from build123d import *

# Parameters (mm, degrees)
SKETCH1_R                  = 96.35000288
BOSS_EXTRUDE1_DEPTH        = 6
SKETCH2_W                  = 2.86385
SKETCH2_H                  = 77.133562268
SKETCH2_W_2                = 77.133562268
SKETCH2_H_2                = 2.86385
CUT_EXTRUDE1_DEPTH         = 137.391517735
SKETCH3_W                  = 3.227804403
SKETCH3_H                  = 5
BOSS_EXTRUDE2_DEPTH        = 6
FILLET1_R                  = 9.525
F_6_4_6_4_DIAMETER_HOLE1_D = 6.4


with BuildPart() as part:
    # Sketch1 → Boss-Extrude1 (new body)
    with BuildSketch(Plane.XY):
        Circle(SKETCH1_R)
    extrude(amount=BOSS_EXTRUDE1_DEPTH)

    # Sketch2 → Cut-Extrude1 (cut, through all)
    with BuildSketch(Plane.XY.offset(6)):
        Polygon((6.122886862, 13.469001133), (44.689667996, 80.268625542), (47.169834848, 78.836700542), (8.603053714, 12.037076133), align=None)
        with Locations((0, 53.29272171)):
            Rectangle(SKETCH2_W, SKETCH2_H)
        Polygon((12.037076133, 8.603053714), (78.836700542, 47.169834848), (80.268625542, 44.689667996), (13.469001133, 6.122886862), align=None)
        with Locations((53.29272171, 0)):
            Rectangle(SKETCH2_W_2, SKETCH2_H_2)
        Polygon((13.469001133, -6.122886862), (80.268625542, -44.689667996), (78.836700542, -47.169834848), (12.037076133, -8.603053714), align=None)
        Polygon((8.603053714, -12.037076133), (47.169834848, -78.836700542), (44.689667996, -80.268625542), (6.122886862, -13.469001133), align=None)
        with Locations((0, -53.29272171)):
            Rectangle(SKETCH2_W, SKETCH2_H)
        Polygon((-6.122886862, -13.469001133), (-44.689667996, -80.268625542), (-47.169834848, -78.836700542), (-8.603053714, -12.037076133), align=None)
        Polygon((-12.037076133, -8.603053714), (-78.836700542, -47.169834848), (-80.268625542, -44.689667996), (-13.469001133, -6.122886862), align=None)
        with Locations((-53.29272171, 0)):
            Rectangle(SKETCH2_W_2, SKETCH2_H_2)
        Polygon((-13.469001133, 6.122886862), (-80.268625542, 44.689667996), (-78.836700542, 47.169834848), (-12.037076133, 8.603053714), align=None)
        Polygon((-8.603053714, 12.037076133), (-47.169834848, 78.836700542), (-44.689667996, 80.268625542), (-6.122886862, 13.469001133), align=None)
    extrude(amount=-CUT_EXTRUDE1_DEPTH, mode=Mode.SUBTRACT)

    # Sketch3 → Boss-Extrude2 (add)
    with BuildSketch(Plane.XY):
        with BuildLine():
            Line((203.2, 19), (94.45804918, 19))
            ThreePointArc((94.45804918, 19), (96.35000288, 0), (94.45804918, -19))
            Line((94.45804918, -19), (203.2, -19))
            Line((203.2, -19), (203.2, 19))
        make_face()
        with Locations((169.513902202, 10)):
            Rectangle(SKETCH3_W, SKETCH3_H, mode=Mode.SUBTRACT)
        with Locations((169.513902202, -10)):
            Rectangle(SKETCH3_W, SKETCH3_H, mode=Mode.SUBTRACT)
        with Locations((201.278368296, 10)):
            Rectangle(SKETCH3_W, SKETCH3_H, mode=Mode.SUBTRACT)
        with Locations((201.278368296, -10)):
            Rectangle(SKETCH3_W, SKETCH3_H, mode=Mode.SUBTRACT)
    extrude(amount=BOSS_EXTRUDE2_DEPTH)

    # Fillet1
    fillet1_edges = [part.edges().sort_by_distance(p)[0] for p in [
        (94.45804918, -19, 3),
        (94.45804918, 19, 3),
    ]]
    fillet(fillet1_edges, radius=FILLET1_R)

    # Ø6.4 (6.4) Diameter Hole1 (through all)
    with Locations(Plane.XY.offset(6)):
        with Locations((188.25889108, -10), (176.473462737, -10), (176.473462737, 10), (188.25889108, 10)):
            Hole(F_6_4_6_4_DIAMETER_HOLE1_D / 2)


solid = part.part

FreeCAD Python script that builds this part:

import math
import FreeCAD as App
import Part
import Sketcher
from FreeCAD import Vector
Q = App.Units.Quantity


def edges_at(feature, points):
    """Names of the edges that pass closest to the given points."""
    edges = feature.Shape.Edges
    near = lambda p: min(range(len(edges)), key=lambda i: edges[i].distToShape(Part.Vertex(*p))[0])
    return sorted({f"Edge{near(p) + 1}" for p in points})

doc = App.newDocument("Part")
body = doc.addObject("PartDesign::Body", "Body")

# Sketch on XY plane
sketch1 = doc.addObject("Sketcher::SketchObject", "Sketch")
body.addObject(sketch1)
sketch1.AttachmentSupport = (doc.XY_Plane, [""])
sketch1.MapMode = "FlatFace"
sketch1.addGeometry(Part.Circle(Vector(0, 0, 0), Vector(0, 0, 1), 96.350003), False)
sketch1.addConstraint([
    Sketcher.Constraint("Coincident", 0, 3, -1, 1),
    Sketcher.Constraint("Diameter", 0, 192.700006),
])
pad1 = doc.addObject("PartDesign::Pad", "Pad")
body.addObject(pad1)
pad1.Profile = sketch1
pad1.Length = 6

# Sketch on XY plane
sketch2 = doc.addObject("Sketcher::SketchObject", "Sketch001")
body.addObject(sketch2)
sketch2.AttachmentSupport = (doc.XY_Plane, [""])
sketch2.MapMode = "FlatFace"
sketch2.AttachmentOffset = App.Placement(Vector(0, 0, 6), App.Rotation())
sketch2.addGeometry([
    Part.LineSegment(Vector(44.689668, 80.268626, 0), Vector(6.122887, 13.469001, 0)),  # 0
    Part.LineSegment(Vector(6.122887, 13.469001, 0), Vector(8.603054, 12.037076, 0)),  # 1
    Part.LineSegment(Vector(8.603054, 12.037076, 0), Vector(47.169835, 78.836701, 0)),  # 2
    Part.LineSegment(Vector(47.169835, 78.836701, 0), Vector(44.689668, 80.268626, 0)),  # 3
    Part.LineSegment(Vector(-1.431925, 91.859503, 0), Vector(-1.431925, 14.725941, 0)),  # 4
    Part.LineSegment(Vector(-1.431925, 14.725941, 0), Vector(1.431925, 14.725941, 0)),  # 5
    Part.LineSegment(Vector(1.431925, 14.725941, 0), Vector(1.431925, 91.859503, 0)),  # 6
    Part.LineSegment(Vector(1.431925, 91.859503, 0), Vector(-1.431925, 91.859503, 0)),  # 7
    Part.LineSegment(Vector(78.836701, 47.169835, 0), Vector(12.037076, 8.603054, 0)),  # 8
    Part.LineSegment(Vector(12.037076, 8.603054, 0), Vector(13.469001, 6.122887, 0)),  # 9
    Part.LineSegment(Vector(13.469001, 6.122887, 0), Vector(80.268626, 44.689668, 0)),  # 10
    Part.LineSegment(Vector(80.268626, 44.689668, 0), Vector(78.836701, 47.169835, 0)),  # 11
    Part.LineSegment(Vector(14.725941, 1.431925, 0), Vector(14.725941, -1.431925, 0)),  # 12
    Part.LineSegment(Vector(14.725941, -1.431925, 0), Vector(91.859503, -1.431925, 0)),  # 13
    Part.LineSegment(Vector(91.859503, -1.431925, 0), Vector(91.859503, 1.431925, 0)),  # 14
    Part.LineSegment(Vector(91.859503, 1.431925, 0), Vector(14.725941, 1.431925, 0)),  # 15
    Part.LineSegment(Vector(80.268626, -44.689668, 0), Vector(13.469001, -6.122887, 0)),  # 16
    Part.LineSegment(Vector(13.469001, -6.122887, 0), Vector(12.037076, -8.603054, 0)),  # 17
    Part.LineSegment(Vector(12.037076, -8.603054, 0), Vector(78.836701, -47.169835, 0)),  # 18
    Part.LineSegment(Vector(78.836701, -47.169835, 0), Vector(80.268626, -44.689668, 0)),  # 19
    Part.LineSegment(Vector(47.169835, -78.836701, 0), Vector(8.603054, -12.037076, 0)),  # 20
    Part.LineSegment(Vector(8.603054, -12.037076, 0), Vector(6.122887, -13.469001, 0)),  # 21
    Part.LineSegment(Vector(6.122887, -13.469001, 0), Vector(44.689668, -80.268626, 0)),  # 22
    Part.LineSegment(Vector(44.689668, -80.268626, 0), Vector(47.169835, -78.836701, 0)),  # 23
    Part.LineSegment(Vector(-1.431925, -14.725941, 0), Vector(-1.431925, -91.859503, 0)),  # 24
    Part.LineSegment(Vector(-1.431925, -91.859503, 0), Vector(1.431925, -91.859503, 0)),  # 25
    Part.LineSegment(Vector(1.431925, -91.859503, 0), Vector(1.431925, -14.725941, 0)),  # 26
    Part.LineSegment(Vector(1.431925, -14.725941, 0), Vector(-1.431925, -14.725941, 0)),  # 27
    Part.LineSegment(Vector(-44.689668, -80.268626, 0), Vector(-6.122887, -13.469001, 0)),  # 28
    Part.LineSegment(Vector(-6.122887, -13.469001, 0), Vector(-8.603054, -12.037076, 0)),  # 29
    Part.LineSegment(Vector(-8.603054, -12.037076, 0), Vector(-47.169835, -78.836701, 0)),  # 30
    Part.LineSegment(Vector(-47.169835, -78.836701, 0), Vector(-44.689668, -80.268626, 0)),  # 31
    Part.LineSegment(Vector(-78.836701, -47.169835, 0), Vector(-12.037076, -8.603054, 0)),  # 32
    Part.LineSegment(Vector(-12.037076, -8.603054, 0), Vector(-13.469001, -6.122887, 0)),  # 33
    Part.LineSegment(Vector(-13.469001, -6.122887, 0), Vector(-80.268626, -44.689668, 0)),  # 34
    Part.LineSegment(Vector(-80.268626, -44.689668, 0), Vector(-78.836701, -47.169835, 0)),  # 35
    Part.LineSegment(Vector(-91.859503, 1.431925, 0), Vector(-91.859503, -1.431925, 0)),  # 36
    Part.LineSegment(Vector(-91.859503, -1.431925, 0), Vector(-14.725941, -1.431925, 0)),  # 37
    Part.LineSegment(Vector(-14.725941, -1.431925, 0), Vector(-14.725941, 1.431925, 0)),  # 38
    Part.LineSegment(Vector(-14.725941, 1.431925, 0), Vector(-91.859503, 1.431925, 0)),  # 39
    Part.LineSegment(Vector(-80.268626, 44.689668, 0), Vector(-13.469001, 6.122887, 0)),  # 40
    Part.LineSegment(Vector(-13.469001, 6.122887, 0), Vector(-12.037076, 8.603054, 0)),  # 41
    Part.LineSegment(Vector(-12.037076, 8.603054, 0), Vector(-78.836701, 47.169835, 0)),  # 42
    Part.LineSegment(Vector(-78.836701, 47.169835, 0), Vector(-80.268626, 44.689668, 0)),  # 43
    Part.LineSegment(Vector(-47.169835, 78.836701, 0), Vector(-8.603054, 12.037076, 0)),  # 44
    Part.LineSegment(Vector(-8.603054, 12.037076, 0), Vector(-6.122887, 13.469001, 0)),  # 45
    Part.LineSegment(Vector(-6.122887, 13.469001, 0), Vector(-44.689668, 80.268626, 0)),  # 46
    Part.LineSegment(Vector(-44.689668, 80.268626, 0), Vector(-47.169835, 78.836701, 0)),  # 47
], False)
sketch2.addConstraint([
    Sketcher.Constraint("Coincident", 0, 2, 1, 1),
    Sketcher.Constraint("Coincident", 1, 2, 2, 1),
    Sketcher.Constraint("Coincident", 2, 2, 3, 1),
    Sketcher.Constraint("Coincident", 3, 2, 0, 1),
    Sketcher.Constraint("Coincident", 4, 2, 5, 1),
    Sketcher.Constraint("Coincident", 5, 2, 6, 1),
    Sketcher.Constraint("Coincident", 6, 2, 7, 1),
    Sketcher.Constraint("Coincident", 7, 2, 4, 1),
    Sketcher.Constraint("Coincident", 8, 2, 9, 1),
    Sketcher.Constraint("Coincident", 9, 2, 10, 1),
    Sketcher.Constraint("Coincident", 10, 2, 11, 1),
    Sketcher.Constraint("Coincident", 11, 2, 8, 1),
    Sketcher.Constraint("Coincident", 12, 2, 13, 1),
    Sketcher.Constraint("Coincident", 13, 2, 14, 1),
    Sketcher.Constraint("Coincident", 14, 2, 15, 1),
    Sketcher.Constraint("Coincident", 15, 2, 12, 1),
    Sketcher.Constraint("Coincident", 16, 2, 17, 1),
    Sketcher.Constraint("Coincident", 17, 2, 18, 1),
    Sketcher.Constraint("Coincident", 18, 2, 19, 1),
    Sketcher.Constraint("Coincident", 19, 2, 16, 1),
    Sketcher.Constraint("Coincident", 20, 2, 21, 1),
    Sketcher.Constraint("Coincident", 21, 2, 22, 1),
    Sketcher.Constraint("Coincident", 22, 2, 23, 1),
    Sketcher.Constraint("Coincident", 23, 2, 20, 1),
    Sketcher.Constraint("Coincident", 24, 2, 25, 1),
    Sketcher.Constraint("Coincident", 25, 2, 26, 1),
    Sketcher.Constraint("Coincident", 26, 2, 27, 1),
    Sketcher.Constraint("Coincident", 27, 2, 24, 1),
    Sketcher.Constraint("Coincident", 28, 2, 29, 1),
    Sketcher.Constraint("Coincident", 29, 2, 30, 1),
    Sketcher.Constraint("Coincident", 30, 2, 31, 1),
    Sketcher.Constraint("Coincident", 31, 2, 28, 1),
    Sketcher.Constraint("Coincident", 32, 2, 33, 1),
    Sketcher.Constraint("Coincident", 33, 2, 34, 1),
    Sketcher.Constraint("Coincident", 34, 2, 35, 1),
    Sketcher.Constraint("Coincident", 35, 2, 32, 1),
    Sketcher.Constraint("Coincident", 36, 2, 37, 1),
    Sketcher.Constraint("Coincident", 37, 2, 38, 1),
    Sketcher.Constraint("Coincident", 38, 2, 39, 1),
    Sketcher.Constraint("Coincident", 39, 2, 36, 1),
    Sketcher.Constraint("Coincident", 40, 2, 41, 1),
    Sketcher.Constraint("Coincident", 41, 2, 42, 1),
    Sketcher.Constraint("Coincident", 42, 2, 43, 1),
    Sketcher.Constraint("Coincident", 43, 2, 40, 1),
    Sketcher.Constraint("Coincident", 44, 2, 45, 1),
    Sketcher.Constraint("Coincident", 45, 2, 46, 1),
    Sketcher.Constraint("Coincident", 46, 2, 47, 1),
    Sketcher.Constraint("Coincident", 47, 2, 44, 1),
    Sketcher.Constraint("Vertical", 4),
    Sketcher.Constraint("Horizontal", 5),
    Sketcher.Constraint("Vertical", 6),
    Sketcher.Constraint("Horizontal", 7),
    Sketcher.Constraint("Vertical", 12),
    Sketcher.Constraint("Horizontal", 13),
    Sketcher.Constraint("Vertical", 14),
    Sketcher.Constraint("Horizontal", 15),
    Sketcher.Constraint("Vertical", 24),
    Sketcher.Constraint("Horizontal", 25),
    Sketcher.Constraint("Vertical", 26),
    Sketcher.Constraint("Horizontal", 27),
    Sketcher.Constraint("Vertical", 36),
    Sketcher.Constraint("Horizontal", 37),
    Sketcher.Constraint("Vertical", 38),
    Sketcher.Constraint("Horizontal", 39),
    Sketcher.Constraint("Symmetric", 6, 2, 24, 2, -1, 1),
    Sketcher.Constraint("Symmetric", 4, 2, 26, 2, -1, 1),
    Sketcher.Constraint("Symmetric", 0, 2, 28, 2, -1, 1),
    Sketcher.Constraint("Symmetric", 1, 2, 29, 2, -1, 1),
    Sketcher.Constraint("Symmetric", 2, 2, 30, 2, -1, 1),
    Sketcher.Constraint("Symmetric", 3, 2, 31, 2, -1, 1),
    Sketcher.Constraint("Symmetric", 8, 2, 32, 2, -1, 1),
    Sketcher.Constraint("Symmetric", 9, 2, 33, 2, -1, 1),
    Sketcher.Constraint("Symmetric", 10, 2, 34, 2, -1, 1),
    Sketcher.Constraint("Symmetric", 11, 2, 35, 2, -1, 1),
    Sketcher.Constraint("Symmetric", 14, 2, 36, 2, -1, 1),
    Sketcher.Constraint("Symmetric", 12, 2, 38, 2, -1, 1),
    Sketcher.Constraint("Symmetric", 16, 2, 40, 2, -1, 1),
    Sketcher.Constraint("Symmetric", 17, 2, 41, 2, -1, 1),
    Sketcher.Constraint("Symmetric", 18, 2, 42, 2, -1, 1),
    Sketcher.Constraint("Symmetric", 19, 2, 43, 2, -1, 1),
    Sketcher.Constraint("Symmetric", 20, 2, 44, 2, -1, 1),
    Sketcher.Constraint("Symmetric", 21, 2, 45, 2, -1, 1),
    Sketcher.Constraint("Symmetric", 22, 2, 46, 2, -1, 1),
    Sketcher.Constraint("Symmetric", 23, 2, 47, 2, -1, 1),
    Sketcher.Constraint("Symmetric", 21, 2, 28, 2, -2),
    Sketcher.Constraint("Symmetric", 20, 2, 29, 2, -2),
    Sketcher.Constraint("Symmetric", 23, 2, 30, 2, -2),
    Sketcher.Constraint("Symmetric", 22, 2, 31, 2, -2),
    Sketcher.Constraint("Symmetric", 17, 2, 32, 2, -2),
    Sketcher.Constraint("Symmetric", 16, 2, 33, 2, -2),
    Sketcher.Constraint("Symmetric", 19, 2, 34, 2, -2),
    Sketcher.Constraint("Symmetric", 18, 2, 35, 2, -2),
    Sketcher.Constraint("Perpendicular", 0, 1),
    Sketcher.Constraint("Perpendicular", 1, 2),
    Sketcher.Constraint("Perpendicular", 2, 3),
    Sketcher.Constraint("Perpendicular", 8, 9),
    Sketcher.Constraint("Perpendicular", 9, 10),
    Sketcher.Constraint("Perpendicular", 10, 11),
    Sketcher.Constraint("Parallel", 3, 16),
    Sketcher.Constraint("Horizontal", 13, 2, 36, 2),
    Sketcher.Constraint("Vertical", 7, 2, 24, 2),
    Sketcher.Constraint("Equal", 39, 4),
    Sketcher.Constraint("Equal", 27, 12),
    Sketcher.Constraint("Equal", 2, 8),
    Sketcher.Constraint("Equal", 3, 9),
    Sketcher.Constraint("Angle", 0, Q("-120 deg")),
    Sketcher.Constraint("DistanceY", -1, 1, 0, 2, 13.469001),
    Sketcher.Constraint("DistanceX", -1, 1, 9, 2, 13.469001),
    Sketcher.Constraint("DistanceX", 4, 2, 8, 2, 13.469001),
    Sketcher.Constraint("DistanceX", 5, 1, 5, 2, 2.86385),
    Sketcher.Constraint("DistanceY", -1, 1, 2, 2, 78.836701),
    Sketcher.Constraint("DistanceY", 0, 2, 6, 2, 78.390502),
    Sketcher.Constraint("DistanceX", 9, 2, 13, 2, 78.390502),
    Sketcher.Constraint("DistanceX", 13, 1, 13, 2, 77.133562),
    Sketcher.Constraint("DistanceX", 4, 2, 0, 2, 7.554812),
    Sketcher.Constraint("DistanceY", 9, 2, 1, 2, 5.914189),
])
pocket1 = doc.addObject("PartDesign::Pocket", "Pocket")
body.addObject(pocket1)
pocket1.Profile = sketch2
pocket1.Type = "ThroughAll"

# Sketch on XY plane
sketch3 = doc.addObject("Sketcher::SketchObject", "Sketch002")
body.addObject(sketch3)
sketch3.AttachmentSupport = (doc.XY_Plane, [""])
sketch3.MapMode = "FlatFace"
sketch3.addGeometry([
    Part.LineSegment(Vector(203.2, 19, 0), Vector(94.458049, 19, 0)),  # 0
    Part.ArcOfCircle(Part.Circle(Vector(0, 0, 0), Vector(0, 0, 1), 96.350003), math.radians(-11.373136), math.radians(11.373136)),  # 1
    Part.LineSegment(Vector(94.458049, -19, 0), Vector(203.2, -19, 0)),  # 2
    Part.LineSegment(Vector(203.2, -19, 0), Vector(203.2, 19, 0)),  # 3
    Part.LineSegment(Vector(171.127804, -12.5, 0), Vector(167.9, -12.5, 0)),  # 4
    Part.LineSegment(Vector(167.9, -12.5, 0), Vector(167.9, -7.5, 0)),  # 5
    Part.LineSegment(Vector(167.9, -7.5, 0), Vector(171.127804, -7.5, 0)),  # 6
    Part.LineSegment(Vector(171.127804, -7.5, 0), Vector(171.127804, -12.5, 0)),  # 7
    Part.LineSegment(Vector(202.89227, -12.5, 0), Vector(199.664466, -12.5, 0)),  # 8
    Part.LineSegment(Vector(199.664466, -12.5, 0), Vector(199.664466, -7.5, 0)),  # 9
    Part.LineSegment(Vector(199.664466, -7.5, 0), Vector(202.89227, -7.5, 0)),  # 10
    Part.LineSegment(Vector(202.89227, -7.5, 0), Vector(202.89227, -12.5, 0)),  # 11
    Part.LineSegment(Vector(171.127804, 7.5, 0), Vector(167.9, 7.5, 0)),  # 12
    Part.LineSegment(Vector(167.9, 7.5, 0), Vector(167.9, 12.5, 0)),  # 13
    Part.LineSegment(Vector(167.9, 12.5, 0), Vector(171.127804, 12.5, 0)),  # 14
    Part.LineSegment(Vector(171.127804, 12.5, 0), Vector(171.127804, 7.5, 0)),  # 15
    Part.LineSegment(Vector(202.89227, 7.5, 0), Vector(199.664466, 7.5, 0)),  # 16
    Part.LineSegment(Vector(199.664466, 7.5, 0), Vector(199.664466, 12.5, 0)),  # 17
    Part.LineSegment(Vector(199.664466, 12.5, 0), Vector(202.89227, 12.5, 0)),  # 18
    Part.LineSegment(Vector(202.89227, 12.5, 0), Vector(202.89227, 7.5, 0)),  # 19
], False)
sketch3.addConstraint([
    Sketcher.Constraint("Coincident", 0, 2, 1, 2),
    Sketcher.Constraint("Coincident", 1, 1, 2, 1),
    Sketcher.Constraint("Coincident", 2, 2, 3, 1),
    Sketcher.Constraint("Coincident", 3, 2, 0, 1),
    Sketcher.Constraint("Coincident", 4, 2, 5, 1),
    Sketcher.Constraint("Coincident", 5, 2, 6, 1),
    Sketcher.Constraint("Coincident", 6, 2, 7, 1),
    Sketcher.Constraint("Coincident", 7, 2, 4, 1),
    Sketcher.Constraint("Coincident", 8, 2, 9, 1),
    Sketcher.Constraint("Coincident", 9, 2, 10, 1),
    Sketcher.Constraint("Coincident", 10, 2, 11, 1),
    Sketcher.Constraint("Coincident", 11, 2, 8, 1),
    Sketcher.Constraint("Coincident", 12, 2, 13, 1),
    Sketcher.Constraint("Coincident", 13, 2, 14, 1),
    Sketcher.Constraint("Coincident", 14, 2, 15, 1),
    Sketcher.Constraint("Coincident", 15, 2, 12, 1),
    Sketcher.Constraint("Coincident", 16, 2, 17, 1),
    Sketcher.Constraint("Coincident", 17, 2, 18, 1),
    Sketcher.Constraint("Coincident", 18, 2, 19, 1),
    Sketcher.Constraint("Coincident", 19, 2, 16, 1),
    Sketcher.Constraint("Horizontal", 0),
    Sketcher.Constraint("Horizontal", 2),
    Sketcher.Constraint("Vertical", 3),
    Sketcher.Constraint("Horizontal", 4),
    Sketcher.Constraint("Vertical", 5),
    Sketcher.Constraint("Horizontal", 6),
    Sketcher.Constraint("Vertical", 7),
    Sketcher.Constraint("Horizontal", 8),
    Sketcher.Constraint("Vertical", 9),
    Sketcher.Constraint("Horizontal", 10),
    Sketcher.Constraint("Vertical", 11),
    Sketcher.Constraint("Horizontal", 12),
    Sketcher.Constraint("Vertical", 13),
    Sketcher.Constraint("Horizontal", 14),
    Sketcher.Constraint("Vertical", 15),
    Sketcher.Constraint("Horizontal", 16),
    Sketcher.Constraint("Vertical", 17),
    Sketcher.Constraint("Horizontal", 18),
    Sketcher.Constraint("Vertical", 19),
    Sketcher.Constraint("Coincident", 1, 3, -1, 1),
    Sketcher.Constraint("Symmetric", 5, 2, 12, 2, -1),
    Sketcher.Constraint("Symmetric", 7, 2, 14, 2, -1),
    Sketcher.Constraint("Symmetric", 9, 2, 16, 2, -1),
    Sketcher.Constraint("Symmetric", 11, 2, 18, 2, -1),
    Sketcher.Constraint("Horizontal", 7, 2, 8, 2),
    Sketcher.Constraint("Horizontal", 6, 2, 9, 2),
    Sketcher.Constraint("Vertical", 0, 2, 1, 1),
    Sketcher.Constraint("Equal", 6, 8),
    Sketcher.Constraint("DistanceY", 3, 1, 3, 2, 38.0),
    Sketcher.Constraint("DistanceY", 5, 1, 5, 2, 5.0),
    Sketcher.Constraint("DistanceY", 5, 2, 12, 2, 15.0),
    Sketcher.Constraint("DistanceX", -1, 1, 2, 2, 203.2),
    Sketcher.Constraint("DistanceX", -1, 1, 4, 2, 167.9),
    Sketcher.Constraint("Radius", 1, 96.350003),
    Sketcher.Constraint("DistanceX", 4, 2, 4, 1, 3.227804),
    Sketcher.Constraint("DistanceX", -1, 1, 10, 2, 202.89227),
])
pad2 = doc.addObject("PartDesign::Pad", "Pad001")
body.addObject(pad2)
pad2.Profile = sketch3
pad2.Length = 6
doc.recompute()

fillet = doc.addObject("PartDesign::Fillet", "Fillet")
body.addObject(fillet)
fillet.Base = (pad2, edges_at(pad2, [(94.458, -19, 3), (94.458, 19, 3)]))
fillet.Radius = 9.525

# Sketch on XY plane
sketch4 = doc.addObject("Sketcher::SketchObject", "Sketch003")
body.addObject(sketch4)
sketch4.AttachmentSupport = (doc.XY_Plane, [""])
sketch4.MapMode = "FlatFace"
sketch4.AttachmentOffset = App.Placement(Vector(0, 0, 6), App.Rotation())
sketch4.addGeometry([
    Part.Circle(Vector(188.258891, -10, 0), Vector(0, 0, 1), 3.2),
    Part.Circle(Vector(176.473463, -10, 0), Vector(0, 0, 1), 3.2),
    Part.Circle(Vector(176.473463, 10, 0), Vector(0, 0, 1), 3.2),
    Part.Circle(Vector(188.258891, 10, 0), Vector(0, 0, 1), 3.2),
], False)
sketch4.addConstraint([
    Sketcher.Constraint("Equal", 0, 1),
    Sketcher.Constraint("Equal", 1, 2),
    Sketcher.Constraint("Equal", 2, 3),
    Sketcher.Constraint("Symmetric", 1, 3, 2, 3, -1),
    Sketcher.Constraint("Symmetric", 0, 3, 3, 3, -1),
    Sketcher.Constraint("Horizontal", 0, 3, 1, 3),
    Sketcher.Constraint("Diameter", 0, 6.4),
    Sketcher.Constraint("DistanceY", 0, 3, -1, 1, 10.0),
    Sketcher.Constraint("DistanceX", -1, 1, 0, 3, 188.258891),
    Sketcher.Constraint("DistanceX", 1, 3, 0, 3, 11.785428),
])
doc.recompute()
hole = doc.addObject("PartDesign::Hole", "Hole")
body.addObject(hole)
hole.Profile = sketch4
hole.ThreadType = "None"
hole.Diameter = 6.4
hole.DepthType = "ThroughAll"

doc.recompute()
